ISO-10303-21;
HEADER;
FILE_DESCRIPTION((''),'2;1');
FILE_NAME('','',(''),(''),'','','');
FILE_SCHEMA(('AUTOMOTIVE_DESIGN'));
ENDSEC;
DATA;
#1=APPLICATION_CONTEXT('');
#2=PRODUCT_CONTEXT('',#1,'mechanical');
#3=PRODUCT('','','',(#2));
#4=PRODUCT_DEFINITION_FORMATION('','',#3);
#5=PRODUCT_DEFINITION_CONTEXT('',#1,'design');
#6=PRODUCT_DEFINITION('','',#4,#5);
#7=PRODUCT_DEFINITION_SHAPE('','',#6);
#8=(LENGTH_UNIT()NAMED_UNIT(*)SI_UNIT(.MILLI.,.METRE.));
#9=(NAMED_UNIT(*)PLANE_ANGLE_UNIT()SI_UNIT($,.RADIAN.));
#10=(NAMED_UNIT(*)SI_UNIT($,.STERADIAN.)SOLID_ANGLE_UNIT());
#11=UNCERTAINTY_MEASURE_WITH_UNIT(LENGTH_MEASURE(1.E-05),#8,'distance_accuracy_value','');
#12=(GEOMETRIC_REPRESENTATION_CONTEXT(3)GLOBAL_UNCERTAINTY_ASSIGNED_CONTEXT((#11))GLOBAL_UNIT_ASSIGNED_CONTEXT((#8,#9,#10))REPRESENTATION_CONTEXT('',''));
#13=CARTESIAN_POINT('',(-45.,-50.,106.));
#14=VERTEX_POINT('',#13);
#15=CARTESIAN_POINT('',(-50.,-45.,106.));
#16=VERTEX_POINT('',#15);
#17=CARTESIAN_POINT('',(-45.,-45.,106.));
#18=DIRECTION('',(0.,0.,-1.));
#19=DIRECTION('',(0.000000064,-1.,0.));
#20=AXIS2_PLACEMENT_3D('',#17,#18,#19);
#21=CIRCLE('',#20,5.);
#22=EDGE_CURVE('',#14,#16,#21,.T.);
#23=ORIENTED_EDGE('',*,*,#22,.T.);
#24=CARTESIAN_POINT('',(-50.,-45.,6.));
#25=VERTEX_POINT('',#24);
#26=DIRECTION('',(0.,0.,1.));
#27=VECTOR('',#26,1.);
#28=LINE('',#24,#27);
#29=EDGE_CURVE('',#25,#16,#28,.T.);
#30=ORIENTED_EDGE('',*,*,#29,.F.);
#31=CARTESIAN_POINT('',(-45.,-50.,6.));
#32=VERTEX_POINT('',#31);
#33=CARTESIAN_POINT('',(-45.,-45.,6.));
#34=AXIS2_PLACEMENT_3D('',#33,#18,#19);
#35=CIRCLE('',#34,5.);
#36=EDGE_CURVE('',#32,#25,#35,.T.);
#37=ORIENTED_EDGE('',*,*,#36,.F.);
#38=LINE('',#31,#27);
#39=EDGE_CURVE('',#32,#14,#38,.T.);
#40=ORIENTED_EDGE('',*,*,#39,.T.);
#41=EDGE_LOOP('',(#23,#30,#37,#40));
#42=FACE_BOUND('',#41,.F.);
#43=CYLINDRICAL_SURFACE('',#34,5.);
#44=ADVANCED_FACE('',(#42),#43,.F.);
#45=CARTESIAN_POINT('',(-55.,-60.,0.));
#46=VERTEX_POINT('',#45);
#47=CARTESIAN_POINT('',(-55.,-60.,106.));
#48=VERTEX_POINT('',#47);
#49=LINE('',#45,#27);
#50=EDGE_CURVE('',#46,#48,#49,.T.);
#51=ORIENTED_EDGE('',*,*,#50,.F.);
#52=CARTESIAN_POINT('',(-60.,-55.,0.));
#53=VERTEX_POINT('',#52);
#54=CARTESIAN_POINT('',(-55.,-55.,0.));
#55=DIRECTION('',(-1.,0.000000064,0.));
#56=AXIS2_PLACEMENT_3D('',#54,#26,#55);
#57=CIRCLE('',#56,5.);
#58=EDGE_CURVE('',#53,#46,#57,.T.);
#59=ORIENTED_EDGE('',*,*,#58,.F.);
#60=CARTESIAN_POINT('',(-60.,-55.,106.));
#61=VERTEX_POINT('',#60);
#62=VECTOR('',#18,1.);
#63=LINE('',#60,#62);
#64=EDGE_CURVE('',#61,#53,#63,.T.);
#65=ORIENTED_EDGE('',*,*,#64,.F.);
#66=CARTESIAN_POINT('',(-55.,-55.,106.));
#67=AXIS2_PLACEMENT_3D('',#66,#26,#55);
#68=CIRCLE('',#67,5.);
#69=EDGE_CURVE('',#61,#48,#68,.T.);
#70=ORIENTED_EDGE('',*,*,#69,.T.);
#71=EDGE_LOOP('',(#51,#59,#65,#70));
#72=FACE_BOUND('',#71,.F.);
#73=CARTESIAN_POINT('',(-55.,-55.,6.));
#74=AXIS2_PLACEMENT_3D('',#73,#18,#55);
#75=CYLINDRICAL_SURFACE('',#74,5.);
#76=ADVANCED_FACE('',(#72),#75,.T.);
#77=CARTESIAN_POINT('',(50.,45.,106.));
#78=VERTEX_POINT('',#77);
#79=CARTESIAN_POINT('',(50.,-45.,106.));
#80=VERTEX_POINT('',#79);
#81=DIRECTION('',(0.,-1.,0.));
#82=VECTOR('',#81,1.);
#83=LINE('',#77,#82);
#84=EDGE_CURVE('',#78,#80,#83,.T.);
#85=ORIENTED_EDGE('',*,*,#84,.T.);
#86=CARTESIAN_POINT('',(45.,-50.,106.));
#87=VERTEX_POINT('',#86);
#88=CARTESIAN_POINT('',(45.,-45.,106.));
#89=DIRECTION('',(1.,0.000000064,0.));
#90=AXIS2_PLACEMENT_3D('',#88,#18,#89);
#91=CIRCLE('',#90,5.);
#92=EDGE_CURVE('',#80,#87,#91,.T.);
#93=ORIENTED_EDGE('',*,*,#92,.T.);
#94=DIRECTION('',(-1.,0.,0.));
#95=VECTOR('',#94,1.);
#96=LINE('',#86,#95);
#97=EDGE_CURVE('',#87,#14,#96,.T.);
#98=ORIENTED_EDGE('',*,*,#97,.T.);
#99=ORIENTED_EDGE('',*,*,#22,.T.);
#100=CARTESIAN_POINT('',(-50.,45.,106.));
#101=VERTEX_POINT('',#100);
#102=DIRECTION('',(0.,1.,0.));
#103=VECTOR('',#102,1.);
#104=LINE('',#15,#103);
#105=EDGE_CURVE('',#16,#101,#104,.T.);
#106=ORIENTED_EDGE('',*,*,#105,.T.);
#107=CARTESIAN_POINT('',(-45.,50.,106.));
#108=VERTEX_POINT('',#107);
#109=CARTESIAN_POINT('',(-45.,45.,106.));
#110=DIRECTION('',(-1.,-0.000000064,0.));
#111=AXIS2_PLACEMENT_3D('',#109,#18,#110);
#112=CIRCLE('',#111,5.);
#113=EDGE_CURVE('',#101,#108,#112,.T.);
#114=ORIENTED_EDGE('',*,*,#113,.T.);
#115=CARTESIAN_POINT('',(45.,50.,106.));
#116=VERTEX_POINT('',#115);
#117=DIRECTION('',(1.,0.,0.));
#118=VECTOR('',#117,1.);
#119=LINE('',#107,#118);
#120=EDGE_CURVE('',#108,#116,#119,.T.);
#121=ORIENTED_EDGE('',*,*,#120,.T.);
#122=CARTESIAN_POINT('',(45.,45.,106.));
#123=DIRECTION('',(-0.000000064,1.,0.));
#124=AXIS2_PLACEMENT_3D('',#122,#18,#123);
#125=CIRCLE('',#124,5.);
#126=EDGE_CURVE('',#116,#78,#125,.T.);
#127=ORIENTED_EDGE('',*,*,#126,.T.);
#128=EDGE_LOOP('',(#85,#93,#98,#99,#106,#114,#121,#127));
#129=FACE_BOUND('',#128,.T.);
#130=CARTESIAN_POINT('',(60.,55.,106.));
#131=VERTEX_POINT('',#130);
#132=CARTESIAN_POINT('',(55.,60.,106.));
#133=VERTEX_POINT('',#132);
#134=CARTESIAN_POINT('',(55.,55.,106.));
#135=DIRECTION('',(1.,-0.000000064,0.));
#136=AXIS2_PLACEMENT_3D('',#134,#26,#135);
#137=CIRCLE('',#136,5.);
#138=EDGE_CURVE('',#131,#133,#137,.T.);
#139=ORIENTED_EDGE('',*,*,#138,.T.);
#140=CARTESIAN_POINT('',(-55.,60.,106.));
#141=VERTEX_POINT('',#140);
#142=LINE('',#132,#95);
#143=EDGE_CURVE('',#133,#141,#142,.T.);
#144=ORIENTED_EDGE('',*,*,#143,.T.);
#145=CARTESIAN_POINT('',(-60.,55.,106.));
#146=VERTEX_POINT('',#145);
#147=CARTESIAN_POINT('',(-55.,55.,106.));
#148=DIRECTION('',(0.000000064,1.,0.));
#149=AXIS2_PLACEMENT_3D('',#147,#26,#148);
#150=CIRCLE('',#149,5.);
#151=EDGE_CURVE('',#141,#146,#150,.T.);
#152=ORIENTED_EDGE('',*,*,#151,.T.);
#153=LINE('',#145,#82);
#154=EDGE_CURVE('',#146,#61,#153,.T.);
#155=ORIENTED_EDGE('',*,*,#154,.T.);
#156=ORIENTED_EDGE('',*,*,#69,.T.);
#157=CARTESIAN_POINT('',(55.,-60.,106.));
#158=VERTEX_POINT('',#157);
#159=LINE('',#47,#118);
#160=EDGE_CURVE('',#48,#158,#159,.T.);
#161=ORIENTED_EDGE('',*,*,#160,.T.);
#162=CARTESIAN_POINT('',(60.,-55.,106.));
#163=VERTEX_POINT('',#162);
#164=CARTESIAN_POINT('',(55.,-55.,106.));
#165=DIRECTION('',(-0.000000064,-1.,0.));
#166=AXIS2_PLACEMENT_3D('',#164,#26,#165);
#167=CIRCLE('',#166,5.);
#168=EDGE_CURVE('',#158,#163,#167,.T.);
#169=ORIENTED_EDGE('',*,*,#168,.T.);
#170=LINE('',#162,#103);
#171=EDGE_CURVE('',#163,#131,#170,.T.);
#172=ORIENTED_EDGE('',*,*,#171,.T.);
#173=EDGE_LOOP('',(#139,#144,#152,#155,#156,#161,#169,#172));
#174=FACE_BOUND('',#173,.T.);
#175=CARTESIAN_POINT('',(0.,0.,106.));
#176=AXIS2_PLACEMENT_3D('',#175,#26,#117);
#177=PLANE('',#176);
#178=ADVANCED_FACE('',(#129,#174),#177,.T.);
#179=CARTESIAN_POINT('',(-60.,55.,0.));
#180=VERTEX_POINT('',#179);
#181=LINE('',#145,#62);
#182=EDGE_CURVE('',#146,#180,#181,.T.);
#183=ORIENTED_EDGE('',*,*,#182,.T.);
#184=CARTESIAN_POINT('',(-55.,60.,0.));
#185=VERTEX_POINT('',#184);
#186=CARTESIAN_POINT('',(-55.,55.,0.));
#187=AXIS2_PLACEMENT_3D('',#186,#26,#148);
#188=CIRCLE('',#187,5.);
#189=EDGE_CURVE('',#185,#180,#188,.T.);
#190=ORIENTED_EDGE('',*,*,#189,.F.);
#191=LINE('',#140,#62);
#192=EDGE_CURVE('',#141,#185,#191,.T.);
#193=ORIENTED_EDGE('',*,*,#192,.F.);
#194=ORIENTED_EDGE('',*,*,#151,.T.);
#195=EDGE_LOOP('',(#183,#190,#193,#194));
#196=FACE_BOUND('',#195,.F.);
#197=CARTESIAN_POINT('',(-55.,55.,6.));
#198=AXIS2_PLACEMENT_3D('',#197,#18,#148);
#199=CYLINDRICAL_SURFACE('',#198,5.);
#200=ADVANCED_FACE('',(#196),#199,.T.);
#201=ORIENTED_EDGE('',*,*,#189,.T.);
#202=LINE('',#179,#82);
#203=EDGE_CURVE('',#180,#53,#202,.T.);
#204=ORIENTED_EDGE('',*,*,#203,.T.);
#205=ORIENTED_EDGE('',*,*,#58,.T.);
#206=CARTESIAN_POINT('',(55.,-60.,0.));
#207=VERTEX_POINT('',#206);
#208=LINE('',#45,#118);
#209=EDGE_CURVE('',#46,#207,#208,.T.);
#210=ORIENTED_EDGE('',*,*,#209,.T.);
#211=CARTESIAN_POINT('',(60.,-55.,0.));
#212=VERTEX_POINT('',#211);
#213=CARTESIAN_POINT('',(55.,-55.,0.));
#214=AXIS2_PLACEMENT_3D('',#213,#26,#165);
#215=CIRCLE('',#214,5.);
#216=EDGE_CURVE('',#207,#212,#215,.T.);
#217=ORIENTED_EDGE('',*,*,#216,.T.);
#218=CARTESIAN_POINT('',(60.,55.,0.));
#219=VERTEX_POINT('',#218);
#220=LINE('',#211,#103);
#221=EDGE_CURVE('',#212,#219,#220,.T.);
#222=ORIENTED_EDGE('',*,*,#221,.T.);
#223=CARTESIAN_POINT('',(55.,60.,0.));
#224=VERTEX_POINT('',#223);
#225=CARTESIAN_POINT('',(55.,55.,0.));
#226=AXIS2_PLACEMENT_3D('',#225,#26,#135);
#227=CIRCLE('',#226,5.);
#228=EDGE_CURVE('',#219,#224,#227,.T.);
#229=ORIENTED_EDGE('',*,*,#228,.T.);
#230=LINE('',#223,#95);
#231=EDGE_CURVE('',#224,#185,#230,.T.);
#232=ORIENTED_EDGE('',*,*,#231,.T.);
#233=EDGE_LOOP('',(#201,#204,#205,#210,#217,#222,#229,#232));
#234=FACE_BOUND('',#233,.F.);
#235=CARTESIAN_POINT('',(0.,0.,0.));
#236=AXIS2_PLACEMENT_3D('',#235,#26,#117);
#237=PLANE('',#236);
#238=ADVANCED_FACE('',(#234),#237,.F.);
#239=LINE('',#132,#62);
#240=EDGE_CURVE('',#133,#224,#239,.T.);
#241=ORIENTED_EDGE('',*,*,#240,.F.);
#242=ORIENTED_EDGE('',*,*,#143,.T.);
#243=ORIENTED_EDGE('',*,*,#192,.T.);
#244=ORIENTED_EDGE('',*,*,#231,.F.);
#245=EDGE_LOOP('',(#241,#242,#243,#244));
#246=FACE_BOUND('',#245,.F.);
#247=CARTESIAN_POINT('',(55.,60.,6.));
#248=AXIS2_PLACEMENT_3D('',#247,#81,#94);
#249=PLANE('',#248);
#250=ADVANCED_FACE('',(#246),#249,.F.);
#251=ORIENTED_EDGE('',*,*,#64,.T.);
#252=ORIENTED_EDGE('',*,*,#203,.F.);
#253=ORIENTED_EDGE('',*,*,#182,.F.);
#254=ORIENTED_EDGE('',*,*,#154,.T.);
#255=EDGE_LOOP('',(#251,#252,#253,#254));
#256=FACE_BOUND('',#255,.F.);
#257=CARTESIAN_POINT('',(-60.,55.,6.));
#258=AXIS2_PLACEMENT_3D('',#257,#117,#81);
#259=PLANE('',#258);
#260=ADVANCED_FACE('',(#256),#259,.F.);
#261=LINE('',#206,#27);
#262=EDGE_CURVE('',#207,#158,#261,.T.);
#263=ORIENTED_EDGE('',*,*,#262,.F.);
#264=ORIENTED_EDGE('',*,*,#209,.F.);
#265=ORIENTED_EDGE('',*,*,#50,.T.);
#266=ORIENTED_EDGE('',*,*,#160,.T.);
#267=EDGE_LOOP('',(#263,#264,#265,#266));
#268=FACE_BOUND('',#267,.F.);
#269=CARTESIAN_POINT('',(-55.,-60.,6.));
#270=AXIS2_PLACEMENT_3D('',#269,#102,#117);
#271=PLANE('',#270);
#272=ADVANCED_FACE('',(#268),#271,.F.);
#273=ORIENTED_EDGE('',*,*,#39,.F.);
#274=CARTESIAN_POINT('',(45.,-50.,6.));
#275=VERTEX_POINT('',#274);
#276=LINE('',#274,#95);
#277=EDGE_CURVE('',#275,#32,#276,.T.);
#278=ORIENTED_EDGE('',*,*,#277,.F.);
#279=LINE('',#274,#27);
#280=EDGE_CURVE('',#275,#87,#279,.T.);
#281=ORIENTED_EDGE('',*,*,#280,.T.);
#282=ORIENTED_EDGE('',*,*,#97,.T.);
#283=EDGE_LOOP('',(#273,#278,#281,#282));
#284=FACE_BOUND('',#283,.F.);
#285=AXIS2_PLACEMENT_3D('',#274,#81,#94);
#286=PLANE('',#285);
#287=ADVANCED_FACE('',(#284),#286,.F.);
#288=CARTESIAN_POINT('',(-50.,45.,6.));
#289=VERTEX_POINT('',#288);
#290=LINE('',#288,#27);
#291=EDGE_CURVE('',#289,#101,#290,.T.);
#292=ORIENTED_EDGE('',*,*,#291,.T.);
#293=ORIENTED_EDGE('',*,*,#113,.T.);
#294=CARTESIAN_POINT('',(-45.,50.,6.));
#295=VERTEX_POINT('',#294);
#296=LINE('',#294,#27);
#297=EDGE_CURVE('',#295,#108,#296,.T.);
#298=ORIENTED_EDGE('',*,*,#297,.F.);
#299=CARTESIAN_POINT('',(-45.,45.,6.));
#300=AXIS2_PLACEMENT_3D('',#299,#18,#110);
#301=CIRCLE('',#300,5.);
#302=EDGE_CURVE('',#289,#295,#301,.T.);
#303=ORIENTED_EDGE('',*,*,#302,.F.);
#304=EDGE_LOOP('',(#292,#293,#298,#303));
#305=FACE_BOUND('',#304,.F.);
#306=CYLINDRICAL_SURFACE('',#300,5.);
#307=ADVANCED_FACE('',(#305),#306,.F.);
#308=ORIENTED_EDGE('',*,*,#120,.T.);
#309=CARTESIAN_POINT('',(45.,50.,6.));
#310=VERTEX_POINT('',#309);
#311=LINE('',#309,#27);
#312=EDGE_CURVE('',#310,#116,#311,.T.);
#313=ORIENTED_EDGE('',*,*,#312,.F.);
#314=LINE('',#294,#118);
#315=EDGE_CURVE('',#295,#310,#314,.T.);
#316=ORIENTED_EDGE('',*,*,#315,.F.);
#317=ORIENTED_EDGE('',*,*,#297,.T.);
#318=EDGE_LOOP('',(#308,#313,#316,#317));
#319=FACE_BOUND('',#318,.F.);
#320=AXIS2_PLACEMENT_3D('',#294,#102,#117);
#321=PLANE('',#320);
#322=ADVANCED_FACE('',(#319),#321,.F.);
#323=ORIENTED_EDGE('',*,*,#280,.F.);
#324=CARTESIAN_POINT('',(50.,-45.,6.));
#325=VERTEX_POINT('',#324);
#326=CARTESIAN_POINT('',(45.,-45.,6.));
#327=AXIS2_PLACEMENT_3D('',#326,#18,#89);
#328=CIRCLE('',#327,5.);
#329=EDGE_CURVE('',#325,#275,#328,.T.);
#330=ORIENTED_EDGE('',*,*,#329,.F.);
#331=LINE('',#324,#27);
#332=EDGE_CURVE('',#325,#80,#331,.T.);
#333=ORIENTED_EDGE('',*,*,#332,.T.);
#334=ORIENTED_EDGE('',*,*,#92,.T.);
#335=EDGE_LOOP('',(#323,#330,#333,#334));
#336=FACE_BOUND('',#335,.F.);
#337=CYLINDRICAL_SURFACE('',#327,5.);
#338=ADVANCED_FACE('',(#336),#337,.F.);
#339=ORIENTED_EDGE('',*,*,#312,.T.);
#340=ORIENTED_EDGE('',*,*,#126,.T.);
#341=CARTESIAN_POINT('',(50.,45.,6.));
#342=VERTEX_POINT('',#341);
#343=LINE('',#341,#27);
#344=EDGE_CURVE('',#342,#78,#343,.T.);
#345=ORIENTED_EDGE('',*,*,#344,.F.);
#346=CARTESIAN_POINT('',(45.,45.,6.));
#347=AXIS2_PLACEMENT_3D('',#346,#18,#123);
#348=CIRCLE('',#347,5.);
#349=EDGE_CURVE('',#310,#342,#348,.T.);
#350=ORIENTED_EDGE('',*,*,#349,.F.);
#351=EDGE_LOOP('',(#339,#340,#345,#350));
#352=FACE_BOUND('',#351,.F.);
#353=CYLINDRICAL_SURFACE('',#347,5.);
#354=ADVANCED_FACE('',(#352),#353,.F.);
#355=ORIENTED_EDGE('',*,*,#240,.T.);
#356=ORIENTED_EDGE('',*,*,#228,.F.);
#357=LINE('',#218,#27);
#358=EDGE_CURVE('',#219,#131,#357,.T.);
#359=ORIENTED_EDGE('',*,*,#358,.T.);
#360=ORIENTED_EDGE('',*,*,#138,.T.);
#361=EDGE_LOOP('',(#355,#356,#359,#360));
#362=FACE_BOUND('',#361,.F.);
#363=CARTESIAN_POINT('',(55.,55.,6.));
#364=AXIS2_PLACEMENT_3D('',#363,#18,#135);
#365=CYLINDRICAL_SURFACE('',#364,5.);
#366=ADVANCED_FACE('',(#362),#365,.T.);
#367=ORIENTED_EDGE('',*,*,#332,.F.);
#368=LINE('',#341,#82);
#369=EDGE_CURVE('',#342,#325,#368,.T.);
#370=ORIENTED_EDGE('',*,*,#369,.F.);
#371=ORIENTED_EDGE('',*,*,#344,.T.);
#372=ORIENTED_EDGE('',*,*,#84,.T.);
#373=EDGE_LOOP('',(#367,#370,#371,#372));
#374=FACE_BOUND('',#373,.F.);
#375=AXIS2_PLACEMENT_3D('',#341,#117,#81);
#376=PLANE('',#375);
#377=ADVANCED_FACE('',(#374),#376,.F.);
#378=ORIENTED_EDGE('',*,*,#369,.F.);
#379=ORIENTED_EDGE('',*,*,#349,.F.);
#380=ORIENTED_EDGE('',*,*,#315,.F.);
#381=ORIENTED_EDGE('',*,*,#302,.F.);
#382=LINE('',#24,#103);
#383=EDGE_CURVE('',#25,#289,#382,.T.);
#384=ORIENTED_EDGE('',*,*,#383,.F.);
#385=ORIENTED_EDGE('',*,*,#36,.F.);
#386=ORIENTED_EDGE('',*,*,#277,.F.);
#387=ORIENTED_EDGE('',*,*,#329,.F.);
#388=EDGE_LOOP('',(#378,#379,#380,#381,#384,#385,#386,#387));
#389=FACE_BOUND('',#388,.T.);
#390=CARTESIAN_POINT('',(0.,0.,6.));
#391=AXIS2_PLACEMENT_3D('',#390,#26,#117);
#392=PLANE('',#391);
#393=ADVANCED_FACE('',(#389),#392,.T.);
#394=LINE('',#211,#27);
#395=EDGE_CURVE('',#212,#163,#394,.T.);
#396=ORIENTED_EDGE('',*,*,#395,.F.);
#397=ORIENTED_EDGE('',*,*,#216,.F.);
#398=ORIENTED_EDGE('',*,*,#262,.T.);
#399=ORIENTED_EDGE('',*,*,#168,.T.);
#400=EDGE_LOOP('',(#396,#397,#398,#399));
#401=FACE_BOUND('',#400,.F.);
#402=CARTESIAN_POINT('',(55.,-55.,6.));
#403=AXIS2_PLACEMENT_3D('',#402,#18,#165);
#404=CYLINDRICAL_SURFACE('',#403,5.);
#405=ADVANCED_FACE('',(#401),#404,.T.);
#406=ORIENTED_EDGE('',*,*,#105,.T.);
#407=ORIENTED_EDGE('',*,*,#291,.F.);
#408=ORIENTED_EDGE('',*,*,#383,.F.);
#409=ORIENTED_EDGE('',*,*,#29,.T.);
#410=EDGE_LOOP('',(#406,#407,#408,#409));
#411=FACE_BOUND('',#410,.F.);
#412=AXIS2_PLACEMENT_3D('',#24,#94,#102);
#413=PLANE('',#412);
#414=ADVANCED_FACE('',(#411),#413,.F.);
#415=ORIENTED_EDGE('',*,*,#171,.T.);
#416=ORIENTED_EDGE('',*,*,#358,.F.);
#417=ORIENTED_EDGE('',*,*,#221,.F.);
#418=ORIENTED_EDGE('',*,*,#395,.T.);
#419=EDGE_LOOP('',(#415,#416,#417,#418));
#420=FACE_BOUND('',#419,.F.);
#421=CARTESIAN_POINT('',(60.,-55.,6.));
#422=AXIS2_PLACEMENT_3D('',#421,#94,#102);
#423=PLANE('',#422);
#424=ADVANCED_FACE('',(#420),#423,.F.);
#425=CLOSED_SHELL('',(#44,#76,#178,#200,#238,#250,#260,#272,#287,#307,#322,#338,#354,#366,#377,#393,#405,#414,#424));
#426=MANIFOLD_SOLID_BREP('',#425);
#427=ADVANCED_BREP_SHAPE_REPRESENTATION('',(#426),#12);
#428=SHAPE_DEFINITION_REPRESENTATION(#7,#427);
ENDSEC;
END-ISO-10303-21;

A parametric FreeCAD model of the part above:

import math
import FreeCAD as App
import Part
import Sketcher
from FreeCAD import Vector

doc = App.newDocument("Part")
body = doc.addObject("PartDesign::Body", "Body")

sketch1 = body.newObject("Sketcher::SketchObject", "Sketch")
sketch1.AttachmentSupport = (doc.getObject("XY_Plane"), [""])
sketch1.MapMode = "FlatFace"
sketch1.addGeometry(Part.ArcOfCircle(Part.Circle(Vector(55, 55, 0), Vector(0, 0, 1), 5), math.radians(0), math.radians(90)), False)
sketch1.addGeometry(Part.LineSegment(Vector(55, 60, 0), Vector(-55, 60, 0)), False)
sketch1.addGeometry(Part.ArcOfCircle(Part.Circle(Vector(-55, 55, 0), Vector(0, 0, 1), 5), math.radians(90), math.radians(180)), False)
sketch1.addGeometry(Part.LineSegment(Vector(-60, 55, 0), Vector(-60, -55, 0)), False)
sketch1.addGeometry(Part.ArcOfCircle(Part.Circle(Vector(-55, -55, 0), Vector(0, 0, 1), 5), math.radians(180), math.radians(270)), False)
sketch1.addGeometry(Part.LineSegment(Vector(-55, -60, 0), Vector(55, -60, 0)), False)
sketch1.addGeometry(Part.ArcOfCircle(Part.Circle(Vector(55, -55, 0), Vector(0, 0, 1), 5), math.radians(-90), math.radians(0)), False)
sketch1.addGeometry(Part.LineSegment(Vector(60, -55, 0), Vector(60, 55, 0)), False)
sketch1.addConstraint(Sketcher.Constraint("Tangent", 0, 2, 1, 1))
sketch1.addConstraint(Sketcher.Constraint("Tangent", 1, 2, 2, 1))
sketch1.addConstraint(Sketcher.Constraint("Tangent", 2, 2, 3, 1))
sketch1.addConstraint(Sketcher.Constraint("Tangent", 3, 2, 4, 1))
sketch1.addConstraint(Sketcher.Constraint("Tangent", 4, 2, 5, 1))
sketch1.addConstraint(Sketcher.Constraint("Tangent", 5, 2, 6, 1))
sketch1.addConstraint(Sketcher.Constraint("Tangent", 6, 2, 7, 1))
sketch1.addConstraint(Sketcher.Constraint("Tangent", 7, 2, 0, 1))
sketch1.addConstraint(Sketcher.Constraint("Horizontal", 1))
sketch1.addConstraint(Sketcher.Constraint("Vertical", 3))
sketch1.addConstraint(Sketcher.Constraint("Horizontal", 5))
sketch1.addConstraint(Sketcher.Constraint("Vertical", 7))
sketch1.addConstraint(Sketcher.Constraint("Equal", 0, 2))
sketch1.addConstraint(Sketcher.Constraint("Equal", 2, 4))
sketch1.addConstraint(Sketcher.Constraint("Equal", 4, 6))
sketch1.addConstraint(Sketcher.Constraint("Symmetric", 0, 3, 4, 3, -1, 1))
sketch1.addConstraint(Sketcher.Constraint("Equal", 5, 3))
sketch1.addConstraint(Sketcher.Constraint("Radius", 0, 5.0))
sketch1.addConstraint(Sketcher.Constraint("DistanceX", 1, 2, 1, 1, 110.0))
pad1 = body.newObject("PartDesign::Pad", "Pad")
pad1.Profile = sketch1
pad1.Length = 6

sketch2 = body.newObject("Sketcher::SketchObject", "Sketch001")
sketch2.AttachmentSupport = (doc.getObject("XY_Plane"), [""])
sketch2.MapMode = "FlatFace"
sketch2.AttachmentOffset = App.Placement(Vector(0, 0, 6), App.Rotation())
sketch2.addGeometry(Part.ArcOfCircle(Part.Circle(Vector(-55, -55, 0), Vector(0, 0, 1), 5), math.radians(180), math.radians(270)), False)
sketch2.addGeometry(Part.LineSegment(Vector(-55, -60, 0), Vector(55, -60, 0)), False)
sketch2.addGeometry(Part.ArcOfCircle(Part.Circle(Vector(55, -55, 0), Vector(0, 0, 1), 5), math.radians(-90), math.radians(0)), False)
sketch2.addGeometry(Part.LineSegment(Vector(60, -55, 0), Vector(60, 55, 0)), False)
sketch2.addGeometry(Part.ArcOfCircle(Part.Circle(Vector(55, 55, 0), Vector(0, 0, 1), 5), math.radians(0), math.radians(90)), False)
sketch2.addGeometry(Part.LineSegment(Vector(55, 60, 0), Vector(-55, 60, 0)), False)
sketch2.addGeometry(Part.ArcOfCircle(Part.Circle(Vector(-55, 55, 0), Vector(0, 0, 1), 5), math.radians(90), math.radians(180)), False)
sketch2.addGeometry(Part.LineSegment(Vector(-60, 55, 0), Vector(-60, -55, 0)), False)
sketch2.addGeometry(Part.ArcOfCircle(Part.Circle(Vector(-45, -45, 0), Vector(0, 0, 1), 5), math.radians(180), math.radians(270)), False)
sketch2.addGeometry(Part.LineSegment(Vector(-50, -45, 0), Vector(-50, 45, 0)), False)
sketch2.addGeometry(Part.ArcOfCircle(Part.Circle(Vector(-45, 45, 0), Vector(0, 0, 1), 5), math.radians(90), math.radians(180)), False)
sketch2.addGeometry(Part.LineSegment(Vector(-45, 50, 0), Vector(45, 50, 0)), False)
sketch2.addGeometry(Part.ArcOfCircle(Part.Circle(Vector(45, 45, 0), Vector(0, 0, 1), 5), math.radians(0), math.radians(90)), False)
sketch2.addGeometry(Part.LineSegment(Vector(50, 45, 0), Vector(50, -45, 0)), False)
sketch2.addGeometry(Part.ArcOfCircle(Part.Circle(Vector(45, -45, 0), Vector(0, 0, 1), 5), math.radians(-90), math.radians(0)), False)
sketch2.addGeometry(Part.LineSegment(Vector(45, -50, 0), Vector(-45, -50, 0)), False)
sketch2.addConstraint(Sketcher.Constraint("Tangent", 0, 2, 1, 1))
sketch2.addConstraint(Sketcher.Constraint("Tangent", 1, 2, 2, 1))
sketch2.addConstraint(Sketcher.Constraint("Tangent", 2, 2, 3, 1))
sketch2.addConstraint(Sketcher.Constraint("Tangent", 3, 2, 4, 1))
sketch2.addConstraint(Sketcher.Constraint("Tangent", 4, 2, 5, 1))
sketch2.addConstraint(Sketcher.Constraint("Tangent", 5, 2, 6, 1))
sketch2.addConstraint(Sketcher.Constraint("Tangent", 6, 2, 7, 1))
sketch2.addConstraint(Sketcher.Constraint("Tangent", 7, 2, 0, 1))
sketch2.addConstraint(Sketcher.Constraint("Tangent", 8, 1, 9, 1))
sketch2.addConstraint(Sketcher.Constraint("Tangent", 9, 2, 10, 2))
sketch2.addConstraint(Sketcher.Constraint("Tangent", 10, 1, 11, 1))
sketch2.addConstraint(Sketcher.Constraint("Tangent", 11, 2, 12, 2))
sketch2.addConstraint(Sketcher.Constraint("Tangent", 12, 1, 13, 1))
sketch2.addConstraint(Sketcher.Constraint("Tangent", 13, 2, 14, 2))
sketch2.addConstraint(Sketcher.Constraint("Tangent", 14, 1, 15, 1))
sketch2.addConstraint(Sketcher.Constraint("Tangent", 15, 2, 8, 2))
sketch2.addConstraint(Sketcher.Constraint("Horizontal", 1))
sketch2.addConstraint(Sketcher.Constraint("Vertical", 3))
sketch2.addConstraint(Sketcher.Constraint("Horizontal", 5))
sketch2.addConstraint(Sketcher.Constraint("Vertical", 7))
sketch2.addConstraint(Sketcher.Constraint("Vertical", 9))
sketch2.addConstraint(Sketcher.Constraint("Horizontal", 11))
sketch2.addConstraint(Sketcher.Constraint("Vertical", 13))
sketch2.addConstraint(Sketcher.Constraint("Horizontal", 15))
sketch2.addConstraint(Sketcher.Constraint("Equal", 0, 2))
sketch2.addConstraint(Sketcher.Constraint("Equal", 2, 4))
sketch2.addConstraint(Sketcher.Constraint("Equal", 4, 6))
sketch2.addConstraint(Sketcher.Constraint("Equal", 6, 8))
sketch2.addConstraint(Sketcher.Constraint("Equal", 8, 10))
sketch2.addConstraint(Sketcher.Constraint("Equal", 10, 12))
sketch2.addConstraint(Sketcher.Constraint("Equal", 12, 14))
sketch2.addConstraint(Sketcher.Constraint("Symmetric", 0, 3, 4, 3, -1, 1))
sketch2.addConstraint(Sketcher.Constraint("Symmetric", 8, 3, 12, 3, -1, 1))
sketch2.addConstraint(Sketcher.Constraint("Equal", 5, 3))
sketch2.addConstraint(Sketcher.Constraint("Equal", 15, 9))
sketch2.addConstraint(Sketcher.Constraint("Radius", 0, 5.0))
sketch2.addConstraint(Sketcher.Constraint("DistanceX", 1, 1, 1, 2, 110.0))
sketch2.addConstraint(Sketcher.Constraint("DistanceX", 11, 1, 11, 2, 90.0))
pad2 = body.newObject("PartDesign::Pad", "Pad001")
pad2.Profile = sketch2
pad2.Length = 100

doc.recompute()
